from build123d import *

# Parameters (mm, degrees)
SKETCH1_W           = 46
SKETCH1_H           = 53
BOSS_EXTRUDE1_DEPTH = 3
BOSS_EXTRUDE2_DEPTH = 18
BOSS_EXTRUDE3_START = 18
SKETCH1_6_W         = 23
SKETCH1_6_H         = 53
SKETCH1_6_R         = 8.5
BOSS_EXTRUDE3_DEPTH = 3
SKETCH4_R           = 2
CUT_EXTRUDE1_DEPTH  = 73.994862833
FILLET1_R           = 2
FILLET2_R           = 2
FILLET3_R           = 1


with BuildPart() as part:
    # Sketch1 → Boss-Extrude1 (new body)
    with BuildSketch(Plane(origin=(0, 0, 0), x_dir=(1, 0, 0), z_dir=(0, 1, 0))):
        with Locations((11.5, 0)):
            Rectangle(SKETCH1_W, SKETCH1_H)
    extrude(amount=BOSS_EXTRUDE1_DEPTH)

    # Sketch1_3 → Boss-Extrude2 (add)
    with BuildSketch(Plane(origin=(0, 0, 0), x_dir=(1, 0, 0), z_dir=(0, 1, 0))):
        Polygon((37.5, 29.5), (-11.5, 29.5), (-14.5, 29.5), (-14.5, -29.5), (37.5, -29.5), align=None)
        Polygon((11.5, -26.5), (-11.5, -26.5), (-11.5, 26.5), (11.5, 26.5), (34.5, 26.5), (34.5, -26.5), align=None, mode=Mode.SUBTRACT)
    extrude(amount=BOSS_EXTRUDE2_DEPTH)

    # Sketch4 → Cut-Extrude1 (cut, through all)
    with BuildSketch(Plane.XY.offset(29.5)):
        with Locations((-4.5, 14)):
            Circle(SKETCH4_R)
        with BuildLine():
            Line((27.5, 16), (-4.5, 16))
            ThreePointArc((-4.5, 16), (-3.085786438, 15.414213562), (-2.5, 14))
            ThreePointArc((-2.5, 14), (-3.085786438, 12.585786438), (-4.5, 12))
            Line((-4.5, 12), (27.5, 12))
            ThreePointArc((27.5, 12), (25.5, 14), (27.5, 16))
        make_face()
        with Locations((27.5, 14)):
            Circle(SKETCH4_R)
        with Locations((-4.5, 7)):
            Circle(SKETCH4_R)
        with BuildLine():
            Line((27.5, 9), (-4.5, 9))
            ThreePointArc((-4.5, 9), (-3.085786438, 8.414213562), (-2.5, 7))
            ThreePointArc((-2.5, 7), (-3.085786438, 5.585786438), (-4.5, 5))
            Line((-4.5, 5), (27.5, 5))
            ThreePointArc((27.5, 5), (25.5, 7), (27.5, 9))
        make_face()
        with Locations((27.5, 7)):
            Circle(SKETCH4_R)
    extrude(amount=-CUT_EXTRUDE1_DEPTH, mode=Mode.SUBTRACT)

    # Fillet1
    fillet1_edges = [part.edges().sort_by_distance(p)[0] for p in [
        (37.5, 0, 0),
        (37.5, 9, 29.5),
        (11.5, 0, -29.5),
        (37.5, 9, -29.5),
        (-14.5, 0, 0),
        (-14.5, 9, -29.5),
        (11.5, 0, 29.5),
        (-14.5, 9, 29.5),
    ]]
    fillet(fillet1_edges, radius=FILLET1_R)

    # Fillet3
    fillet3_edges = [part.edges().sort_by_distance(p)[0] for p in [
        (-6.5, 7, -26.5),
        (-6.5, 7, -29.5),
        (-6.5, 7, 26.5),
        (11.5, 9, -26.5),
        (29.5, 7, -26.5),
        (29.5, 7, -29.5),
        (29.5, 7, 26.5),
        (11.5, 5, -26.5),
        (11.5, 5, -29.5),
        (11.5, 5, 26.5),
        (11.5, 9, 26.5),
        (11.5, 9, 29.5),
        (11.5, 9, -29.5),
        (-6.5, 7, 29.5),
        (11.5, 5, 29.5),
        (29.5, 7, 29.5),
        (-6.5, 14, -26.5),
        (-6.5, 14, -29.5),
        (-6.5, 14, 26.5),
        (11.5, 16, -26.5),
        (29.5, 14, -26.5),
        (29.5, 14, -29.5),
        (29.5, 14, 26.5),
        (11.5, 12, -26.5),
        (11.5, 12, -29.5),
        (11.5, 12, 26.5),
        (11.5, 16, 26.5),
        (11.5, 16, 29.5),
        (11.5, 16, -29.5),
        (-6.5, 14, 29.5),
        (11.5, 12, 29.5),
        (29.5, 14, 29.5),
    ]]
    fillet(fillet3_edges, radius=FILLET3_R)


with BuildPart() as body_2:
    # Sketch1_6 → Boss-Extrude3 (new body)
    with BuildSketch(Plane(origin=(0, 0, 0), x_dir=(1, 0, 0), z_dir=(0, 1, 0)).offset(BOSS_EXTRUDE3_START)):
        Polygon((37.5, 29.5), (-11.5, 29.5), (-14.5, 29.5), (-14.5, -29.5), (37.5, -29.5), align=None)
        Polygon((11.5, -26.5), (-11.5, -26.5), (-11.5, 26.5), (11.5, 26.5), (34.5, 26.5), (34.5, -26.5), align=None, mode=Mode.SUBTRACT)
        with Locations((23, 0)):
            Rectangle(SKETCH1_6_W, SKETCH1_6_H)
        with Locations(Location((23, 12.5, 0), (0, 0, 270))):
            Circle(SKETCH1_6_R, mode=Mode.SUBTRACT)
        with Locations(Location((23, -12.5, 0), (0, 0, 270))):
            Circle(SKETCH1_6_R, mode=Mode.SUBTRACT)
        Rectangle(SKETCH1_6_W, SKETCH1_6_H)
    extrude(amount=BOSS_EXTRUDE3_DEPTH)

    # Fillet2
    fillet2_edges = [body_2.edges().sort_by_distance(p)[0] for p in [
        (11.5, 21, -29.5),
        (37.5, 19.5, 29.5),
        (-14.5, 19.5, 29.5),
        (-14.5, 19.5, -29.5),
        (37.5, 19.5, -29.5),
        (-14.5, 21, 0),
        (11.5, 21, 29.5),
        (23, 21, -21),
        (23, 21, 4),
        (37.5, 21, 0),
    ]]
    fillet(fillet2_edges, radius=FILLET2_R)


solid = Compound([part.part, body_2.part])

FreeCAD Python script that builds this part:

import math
import FreeCAD as App
import Part
import Sketcher
from FreeCAD import Vector


def edges_at(feature, points):
    """Names of the edges that pass closest to the given points."""
    edges = feature.Shape.Edges
    near = lambda p: min(range(len(edges)), key=lambda i: edges[i].distToShape(Part.Vertex(*p))[0])
    return sorted({f"Edge{near(p) + 1}" for p in points})

doc = App.newDocument("Part")
body = doc.addObject("PartDesign::Body", "Body")

sketch1 = body.newObject("Sketcher::SketchObject", "Sketch")
sketch1.AttachmentSupport = (doc.getObject("XZ_Plane"), [""])
sketch1.MapMode = "FlatFace"
sketch1.addGeometry([
    Part.LineSegment(Vector(-12, -26, 0), Vector(-12, 26, 0)),
    Part.LineSegment(Vector(-12, 26, 0), Vector(34, 26, 0)),
    Part.LineSegment(Vector(34, 26, 0), Vector(34, -26, 0)),
    Part.LineSegment(Vector(34, -26, 0), Vector(-12, -26, 0)),
], False)
sketch1.addConstraint([
    Sketcher.Constraint("Coincident", 0, 2, 1, 1),
    Sketcher.Constraint("Coincident", 1, 2, 2, 1),
    Sketcher.Constraint("Coincident", 2, 2, 3, 1),
    Sketcher.Constraint("Coincident", 3, 2, 0, 1),
    Sketcher.Constraint("Vertical", 0),
    Sketcher.Constraint("Horizontal", 1),
    Sketcher.Constraint("Vertical", 2),
    Sketcher.Constraint("Horizontal", 3),
    Sketcher.Constraint("DistanceX", 1, 1, 1, 2, 46.0),
    Sketcher.Constraint("DistanceY", 0, 1, 0, 2, 53.0),
    Sketcher.Constraint("DistanceX", 0, 2, -1, 1, 11.5),
    Sketcher.Constraint("DistanceY", -1, 1, 0, 2, 26.5),
])
pad1 = body.newObject("PartDesign::Pad", "Pad")
pad1.Profile = sketch1
pad1.Length = 3
pad1.Reversed = True

sketch2 = body.newObject("Sketcher::SketchObject", "Sketch001")
sketch2.AttachmentSupport = (doc.getObject("XZ_Plane"), [""])
sketch2.MapMode = "FlatFace"
sketch2.addGeometry([
    Part.LineSegment(Vector(38, -30, 0), Vector(-14, -30, 0)),
    Part.LineSegment(Vector(-14, -30, 0), Vector(-14, 30, 0)),
    Part.LineSegment(Vector(-14, 30, 0), Vector(38, 30, 0)),
    Part.LineSegment(Vector(38, 30, 0), Vector(38, -30, 0)),
    Part.LineSegment(Vector(34, 26, 0), Vector(-12, 26, 0)),
    Part.LineSegment(Vector(-12, 26, 0), Vector(-12, -26, 0)),
    Part.LineSegment(Vector(-12, -26, 0), Vector(34, -26, 0)),
    Part.LineSegment(Vector(34, -26, 0), Vector(34, 26, 0)),
], False)
sketch2.addConstraint([
    Sketcher.Constraint("Coincident", 0, 2, 1, 1),
    Sketcher.Constraint("Coincident", 1, 2, 2, 1),
    Sketcher.Constraint("Coincident", 2, 2, 3, 1),
    Sketcher.Constraint("Coincident", 3, 2, 0, 1),
    Sketcher.Constraint("Coincident", 4, 2, 5, 1),
    Sketcher.Constraint("Coincident", 5, 2, 6, 1),
    Sketcher.Constraint("Coincident", 6, 2, 7, 1),
    Sketcher.Constraint("Coincident", 7, 2, 4, 1),
    Sketcher.Constraint("Horizontal", 0),
    Sketcher.Constraint("Vertical", 1),
    Sketcher.Constraint("Horizontal", 2),
    Sketcher.Constraint("Vertical", 3),
    Sketcher.Constraint("Horizontal", 4),
    Sketcher.Constraint("Vertical", 5),
    Sketcher.Constraint("Horizontal", 6),
    Sketcher.Constraint("Vertical", 7),
    Sketcher.Constraint("DistanceX", 0, 2, 0, 1, 52.0),
    Sketcher.Constraint("DistanceX", 4, 2, 4, 1, 46.0),
    Sketcher.Constraint("DistanceY", 1, 1, 1, 2, 59.0),
    Sketcher.Constraint("DistanceY", 5, 2, 5, 1, 53.0),
    Sketcher.Constraint("DistanceX", 1, 2, 4, 2, 3.0),
    Sketcher.Constraint("DistanceY", 4, 2, 1, 2, 3.0),
    Sketcher.Constraint("DistanceX", 0, 2, -1, 1, 14.5),
    Sketcher.Constraint("DistanceY", 0, 2, -1, 1, 29.5),
])
pad2 = body.newObject("PartDesign::Pad", "Pad001")
pad2.Profile = sketch2
pad2.Length = 18
pad2.Reversed = True

sketch3 = body.newObject("Sketcher::SketchObject", "Sketch002")
sketch3.AttachmentSupport = (doc.getObject("XY_Plane"), [""])
sketch3.MapMode = "FlatFace"
sketch3.AttachmentOffset = App.Placement(Vector(0, 0, 29.5), App.Rotation())
sketch3.addGeometry([
    Part.ArcOfCircle(Part.Circle(Vector(-4.5, 14, 0), Vector(0, 0, 1), 2), math.radians(90), math.radians(270)),
    Part.LineSegment(Vector(-4.5, 12, 0), Vector(27.5, 12, 0)),
    Part.ArcOfCircle(Part.Circle(Vector(27.5, 14, 0), Vector(0, 0, 1), 2), math.radians(-90), math.radians(90)),
    Part.LineSegment(Vector(27.5, 16, 0), Vector(-4.5, 16, 0)),
    Part.ArcOfCircle(Part.Circle(Vector(-4.5, 7, 0), Vector(0, 0, 1), 2), math.radians(90), math.radians(270)),
    Part.LineSegment(Vector(-4.5, 5, 0), Vector(27.5, 5, 0)),
    Part.ArcOfCircle(Part.Circle(Vector(27.5, 7, 0), Vector(0, 0, 1), 2), math.radians(-90), math.radians(90)),
    Part.LineSegment(Vector(27.5, 9, 0), Vector(-4.5, 9, 0)),
], False)
sketch3.addConstraint([
    Sketcher.Constraint("Tangent", 0, 2, 1, 1),
    Sketcher.Constraint("Tangent", 1, 2, 2, 1),
    Sketcher.Constraint("Tangent", 2, 2, 3, 1),
    Sketcher.Constraint("Tangent", 3, 2, 0, 1),
    Sketcher.Constraint("Tangent", 4, 2, 5, 1),
    Sketcher.Constraint("Tangent", 5, 2, 6, 1),
    Sketcher.Constraint("Tangent", 6, 2, 7, 1),
    Sketcher.Constraint("Tangent", 7, 2, 4, 1),
    Sketcher.Constraint("Horizontal", 1),
    Sketcher.Constraint("Horizontal", 3),
    Sketcher.Constraint("Horizontal", 5),
    Sketcher.Constraint("Horizontal", 7),
    Sketcher.Constraint("Equal", 2, 4),
    Sketcher.Constraint("Vertical", 0, 3, 4, 3),
    Sketcher.Constraint("Vertical", 2, 3, 6, 3),
    Sketcher.Constraint("Radius", 0, 2.0),
    Sketcher.Constraint("DistanceX", 1, 1, 1, 2, 32.0),
    Sketcher.Constraint("DistanceY", -1, 1, 0, 3, 14.0),
    Sketcher.Constraint("DistanceY", -1, 1, 4, 3, 7.0),
    Sketcher.Constraint("DistanceX", 0, 3, -1, 1, 4.5),
])
pocket1 = body.newObject("PartDesign::Pocket", "Pocket")
pocket1.Profile = sketch3
pocket1.Type = "ThroughAll"
doc.recompute()

fillet = body.newObject("PartDesign::Fillet", "Fillet")
fillet.Base = (pocket1, edges_at(pocket1, [
    (37.5, 0, 0),
    (37.5, 9, 29.5),
    (11.5, 0, -29.5),
    (37.5, 9, -29.5),
    (-14.5, 0, 0),
    (-14.5, 9, -29.5),
    (11.5, 0, 29.5),
    (-14.5, 9, 29.5),
]))
fillet.Radius = 2
doc.recompute()

fillet2 = body.newObject("PartDesign::Fillet", "Fillet001")
fillet2.Base = (fillet, edges_at(fillet, [
    (-6.5, 7, -26.5),
    (-6.5, 7, -29.5),
    (-6.5, 7, 26.5),
    (11.5, 9, -26.5),
    (29.5, 7, -26.5),
    (29.5, 7, -29.5),
    (29.5, 7, 26.5),
    (11.5, 5, -26.5),
    (11.5, 5, -29.5),
    (11.5, 5, 26.5),
    (11.5, 9, 26.5),
    (11.5, 9, 29.5),
    (11.5, 9, -29.5),
    (-6.5, 7, 29.5),
    (11.5, 5, 29.5),
    (29.5, 7, 29.5),
    (-6.5, 14, -26.5),
    (-6.5, 14, -29.5),
    (-6.5, 14, 26.5),
    (11.5, 16, -26.5),
    (29.5, 14, -26.5),
    (29.5, 14, -29.5),
    (29.5, 14, 26.5),
    (11.5, 12, -26.5),
    (11.5, 12, -29.5),
    (11.5, 12, 26.5),
    (11.5, 16, 26.5),
    (11.5, 16, 29.5),
    (11.5, 16, -29.5),
    (-6.5, 14, 29.5),
    (11.5, 12, 29.5),
    (29.5, 14, 29.5),
]))
fillet2.Radius = 1
body2 = doc.addObject("PartDesign::Body", "Body001")

sketch4 = body2.newObject("Sketcher::SketchObject", "Sketch003")
sketch4.AttachmentSupport = (doc.getObject("XZ_Plane001"), [""])
sketch4.MapMode = "FlatFace"
sketch4.AttachmentOffset = App.Placement(Vector(0, 0, -18), App.Rotation())
sketch4.addGeometry([
    Part.LineSegment(Vector(38, -30, 0), Vector(-14, -30, 0)),
    Part.LineSegment(Vector(-14, -30, 0), Vector(-14, 30, 0)),
    Part.LineSegment(Vector(-14, 30, 0), Vector(38, 30, 0)),
    Part.LineSegment(Vector(38, 30, 0), Vector(38, -30, 0)),
    Part.Circle(Vector(23, 12, 0), Vector(0, 0, 1), 8),
    Part.Circle(Vector(23, -12, 0), Vector(0, 0, 1), 8),
], False)
sketch4.addConstraint([
    Sketcher.Constraint("Coincident", 0, 2, 1, 1),
    Sketcher.Constraint("Coincident", 1, 2, 2, 1),
    Sketcher.Constraint("Coincident", 2, 2, 3, 1),
    Sketcher.Constraint("Coincident", 3, 2, 0, 1),
    Sketcher.Constraint("Horizontal", 0),
    Sketcher.Constraint("Vertical", 1),
    Sketcher.Constraint("Horizontal", 2),
    Sketcher.Constraint("Vertical", 3),
    Sketcher.Constraint("Equal", 4, 5),
    Sketcher.Constraint("Symmetric", 4, 3, 5, 3, -1),
    Sketcher.Constraint("Diameter", 4, 17.0),
    Sketcher.Constraint("DistanceX", 0, 2, 0, 1, 52.0),
    Sketcher.Constraint("DistanceY", 1, 1, 1, 2, 59.0),
    Sketcher.Constraint("DistanceX", -1, 1, 4, 3, 23.0),
    Sketcher.Constraint("DistanceY", 5, 3, 4, 3, 25.0),
    Sketcher.Constraint("DistanceY", 0, 2, 5, 3, 17.0),
    Sketcher.Constraint("DistanceX", 0, 2, -1, 1, 14.5),
])
pad3 = body2.newObject("PartDesign::Pad", "Pad002")
pad3.Profile = sketch4
pad3.Length = 3
pad3.Reversed = True
doc.recompute()

fillet3 = body2.newObject("PartDesign::Fillet", "Fillet002")
fillet3.Base = (pad3, edges_at(pad3, [
    (11.5, 21, -29.5),
    (37.5, 19.5, 29.5),
    (-14.5, 19.5, 29.5),
    (-14.5, 19.5, -29.5),
    (37.5, 19.5, -29.5),
    (-14.5, 21, 0),
    (11.5, 21, 29.5),
    (23, 21, -21),
    (23, 21, 4),
    (37.5, 21, 0),
]))
fillet3.Radius = 2

doc.recompute()
